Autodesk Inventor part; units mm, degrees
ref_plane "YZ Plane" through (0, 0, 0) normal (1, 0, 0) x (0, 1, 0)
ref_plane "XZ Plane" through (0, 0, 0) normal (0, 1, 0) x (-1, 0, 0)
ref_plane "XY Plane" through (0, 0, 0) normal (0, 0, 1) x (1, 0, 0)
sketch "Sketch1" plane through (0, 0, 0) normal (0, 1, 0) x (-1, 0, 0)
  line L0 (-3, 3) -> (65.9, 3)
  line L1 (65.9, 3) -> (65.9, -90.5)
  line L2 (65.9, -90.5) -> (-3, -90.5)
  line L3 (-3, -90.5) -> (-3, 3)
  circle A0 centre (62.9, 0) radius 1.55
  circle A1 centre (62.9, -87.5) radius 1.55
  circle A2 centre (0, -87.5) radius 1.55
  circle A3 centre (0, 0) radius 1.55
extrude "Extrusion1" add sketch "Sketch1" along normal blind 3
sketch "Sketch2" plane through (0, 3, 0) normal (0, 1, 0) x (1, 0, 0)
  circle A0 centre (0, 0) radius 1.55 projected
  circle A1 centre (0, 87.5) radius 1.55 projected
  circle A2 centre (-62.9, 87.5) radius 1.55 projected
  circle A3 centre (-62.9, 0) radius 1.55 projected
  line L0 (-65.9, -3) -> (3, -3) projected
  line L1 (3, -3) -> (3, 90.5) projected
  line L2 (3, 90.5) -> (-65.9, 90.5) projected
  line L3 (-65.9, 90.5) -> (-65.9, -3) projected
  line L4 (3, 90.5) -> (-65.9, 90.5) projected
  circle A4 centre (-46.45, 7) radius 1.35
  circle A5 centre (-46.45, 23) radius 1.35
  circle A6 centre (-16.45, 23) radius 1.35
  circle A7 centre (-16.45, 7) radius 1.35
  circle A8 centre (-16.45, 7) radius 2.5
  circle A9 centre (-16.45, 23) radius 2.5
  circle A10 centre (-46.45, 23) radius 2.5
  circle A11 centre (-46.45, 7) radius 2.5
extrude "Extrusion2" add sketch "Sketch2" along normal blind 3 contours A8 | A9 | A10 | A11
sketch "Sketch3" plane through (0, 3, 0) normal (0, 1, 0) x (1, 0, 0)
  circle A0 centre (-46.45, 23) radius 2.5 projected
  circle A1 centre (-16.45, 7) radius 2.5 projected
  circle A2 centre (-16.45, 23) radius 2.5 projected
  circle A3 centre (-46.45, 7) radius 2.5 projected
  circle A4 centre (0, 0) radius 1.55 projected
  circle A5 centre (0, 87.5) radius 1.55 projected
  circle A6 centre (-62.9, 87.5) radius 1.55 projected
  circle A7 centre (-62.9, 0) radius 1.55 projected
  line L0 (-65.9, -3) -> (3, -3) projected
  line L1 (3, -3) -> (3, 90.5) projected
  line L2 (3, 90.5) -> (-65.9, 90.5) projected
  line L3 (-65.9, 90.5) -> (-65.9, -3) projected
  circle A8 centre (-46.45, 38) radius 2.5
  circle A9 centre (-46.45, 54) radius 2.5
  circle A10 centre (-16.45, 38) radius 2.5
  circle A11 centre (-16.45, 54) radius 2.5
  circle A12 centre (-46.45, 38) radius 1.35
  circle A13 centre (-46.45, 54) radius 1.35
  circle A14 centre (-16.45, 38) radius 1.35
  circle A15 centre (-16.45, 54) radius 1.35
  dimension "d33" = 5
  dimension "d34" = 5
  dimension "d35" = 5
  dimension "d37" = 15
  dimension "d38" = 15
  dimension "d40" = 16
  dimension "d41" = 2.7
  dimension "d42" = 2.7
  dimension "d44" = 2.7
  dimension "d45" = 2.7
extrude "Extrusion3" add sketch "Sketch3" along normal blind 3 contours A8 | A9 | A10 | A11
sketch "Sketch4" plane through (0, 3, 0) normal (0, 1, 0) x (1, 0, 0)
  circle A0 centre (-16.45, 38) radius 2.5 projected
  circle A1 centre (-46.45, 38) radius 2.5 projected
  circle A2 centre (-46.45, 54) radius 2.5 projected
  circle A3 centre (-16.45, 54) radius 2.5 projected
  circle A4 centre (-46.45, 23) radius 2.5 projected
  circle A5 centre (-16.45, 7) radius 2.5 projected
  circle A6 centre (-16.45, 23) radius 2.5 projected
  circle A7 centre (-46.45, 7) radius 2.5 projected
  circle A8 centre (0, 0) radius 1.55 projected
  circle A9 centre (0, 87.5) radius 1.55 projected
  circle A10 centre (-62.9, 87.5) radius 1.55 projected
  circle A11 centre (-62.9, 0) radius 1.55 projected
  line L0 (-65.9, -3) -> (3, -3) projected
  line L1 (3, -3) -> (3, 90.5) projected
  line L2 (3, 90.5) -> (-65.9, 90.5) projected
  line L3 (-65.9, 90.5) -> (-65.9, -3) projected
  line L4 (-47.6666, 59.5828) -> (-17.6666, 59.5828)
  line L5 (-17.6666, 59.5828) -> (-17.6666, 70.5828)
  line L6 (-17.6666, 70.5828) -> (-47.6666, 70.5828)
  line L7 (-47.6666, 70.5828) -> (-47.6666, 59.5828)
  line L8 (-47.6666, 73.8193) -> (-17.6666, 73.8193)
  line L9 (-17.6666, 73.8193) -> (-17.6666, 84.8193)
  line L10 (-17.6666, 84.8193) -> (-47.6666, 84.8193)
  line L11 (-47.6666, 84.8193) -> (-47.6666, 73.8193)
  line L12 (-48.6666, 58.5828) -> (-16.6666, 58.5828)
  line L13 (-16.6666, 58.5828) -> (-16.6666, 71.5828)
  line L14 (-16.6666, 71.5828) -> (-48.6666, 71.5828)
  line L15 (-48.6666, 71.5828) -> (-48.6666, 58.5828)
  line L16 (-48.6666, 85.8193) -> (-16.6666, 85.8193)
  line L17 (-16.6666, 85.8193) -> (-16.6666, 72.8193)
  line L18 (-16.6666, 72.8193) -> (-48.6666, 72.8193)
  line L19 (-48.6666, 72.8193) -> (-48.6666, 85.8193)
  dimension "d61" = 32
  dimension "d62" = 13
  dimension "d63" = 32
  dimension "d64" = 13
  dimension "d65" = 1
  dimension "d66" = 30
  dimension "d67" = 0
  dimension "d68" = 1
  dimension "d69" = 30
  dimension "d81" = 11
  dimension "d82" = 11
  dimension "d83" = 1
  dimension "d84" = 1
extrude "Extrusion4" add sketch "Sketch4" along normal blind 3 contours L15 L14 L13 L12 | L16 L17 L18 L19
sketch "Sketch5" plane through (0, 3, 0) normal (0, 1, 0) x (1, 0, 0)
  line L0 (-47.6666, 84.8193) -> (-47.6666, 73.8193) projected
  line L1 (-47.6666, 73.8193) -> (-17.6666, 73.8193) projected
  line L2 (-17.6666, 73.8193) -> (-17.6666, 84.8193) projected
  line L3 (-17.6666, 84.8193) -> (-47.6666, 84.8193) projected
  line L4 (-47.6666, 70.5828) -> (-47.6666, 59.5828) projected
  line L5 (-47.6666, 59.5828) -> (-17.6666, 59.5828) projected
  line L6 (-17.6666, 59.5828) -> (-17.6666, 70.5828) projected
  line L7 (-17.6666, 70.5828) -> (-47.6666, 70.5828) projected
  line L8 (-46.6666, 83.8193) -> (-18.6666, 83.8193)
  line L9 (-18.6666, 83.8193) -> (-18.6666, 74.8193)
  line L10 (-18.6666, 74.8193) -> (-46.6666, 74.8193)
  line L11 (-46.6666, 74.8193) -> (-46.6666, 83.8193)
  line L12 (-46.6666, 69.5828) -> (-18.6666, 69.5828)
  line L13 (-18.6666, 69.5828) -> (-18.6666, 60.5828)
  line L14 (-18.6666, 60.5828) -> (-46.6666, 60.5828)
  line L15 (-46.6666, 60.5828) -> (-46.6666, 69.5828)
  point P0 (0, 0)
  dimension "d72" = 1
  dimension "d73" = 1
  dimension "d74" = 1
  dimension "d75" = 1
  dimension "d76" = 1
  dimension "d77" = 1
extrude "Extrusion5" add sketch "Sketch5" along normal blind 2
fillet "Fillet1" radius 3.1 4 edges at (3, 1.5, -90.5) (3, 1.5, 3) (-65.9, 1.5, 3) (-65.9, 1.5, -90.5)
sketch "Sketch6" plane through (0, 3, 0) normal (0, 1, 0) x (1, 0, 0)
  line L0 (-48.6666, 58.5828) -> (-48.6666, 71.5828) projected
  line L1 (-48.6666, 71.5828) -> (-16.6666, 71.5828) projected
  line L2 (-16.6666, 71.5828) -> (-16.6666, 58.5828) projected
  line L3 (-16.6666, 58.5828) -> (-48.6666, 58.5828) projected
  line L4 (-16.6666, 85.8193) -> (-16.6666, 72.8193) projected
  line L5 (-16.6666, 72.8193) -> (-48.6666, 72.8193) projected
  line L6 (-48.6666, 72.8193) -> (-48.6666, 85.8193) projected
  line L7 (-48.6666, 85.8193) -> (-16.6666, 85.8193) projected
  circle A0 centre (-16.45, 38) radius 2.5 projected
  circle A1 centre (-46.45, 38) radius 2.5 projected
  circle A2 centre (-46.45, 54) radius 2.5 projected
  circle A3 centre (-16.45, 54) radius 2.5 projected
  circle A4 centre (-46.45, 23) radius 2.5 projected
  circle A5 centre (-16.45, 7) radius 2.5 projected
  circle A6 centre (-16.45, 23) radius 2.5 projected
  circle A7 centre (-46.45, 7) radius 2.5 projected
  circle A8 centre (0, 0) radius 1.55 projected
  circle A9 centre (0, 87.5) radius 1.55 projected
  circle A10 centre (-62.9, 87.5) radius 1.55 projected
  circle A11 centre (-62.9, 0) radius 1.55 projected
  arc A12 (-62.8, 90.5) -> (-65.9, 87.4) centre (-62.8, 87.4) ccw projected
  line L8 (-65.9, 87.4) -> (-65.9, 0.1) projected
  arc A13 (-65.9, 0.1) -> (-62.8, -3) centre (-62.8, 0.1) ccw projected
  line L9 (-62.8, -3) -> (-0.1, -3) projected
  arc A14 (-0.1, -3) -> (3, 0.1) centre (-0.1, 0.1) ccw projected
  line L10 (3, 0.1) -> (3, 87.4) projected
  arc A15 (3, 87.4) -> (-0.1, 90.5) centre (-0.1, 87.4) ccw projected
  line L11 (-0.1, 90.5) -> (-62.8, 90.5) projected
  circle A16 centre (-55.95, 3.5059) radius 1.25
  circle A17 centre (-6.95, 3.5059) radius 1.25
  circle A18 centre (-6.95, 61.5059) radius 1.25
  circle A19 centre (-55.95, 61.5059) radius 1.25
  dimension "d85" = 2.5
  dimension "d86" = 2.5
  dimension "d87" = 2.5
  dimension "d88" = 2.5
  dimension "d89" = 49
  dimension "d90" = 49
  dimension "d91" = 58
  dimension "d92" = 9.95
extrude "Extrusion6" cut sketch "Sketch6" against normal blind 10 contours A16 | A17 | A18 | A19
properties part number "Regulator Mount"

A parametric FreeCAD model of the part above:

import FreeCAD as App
import Part
import Sketcher

V = App.Vector
Q = App.Units.Quantity


def edges_at(feature, points):
    """Names of the edges that pass closest to the given points."""
    edges = feature.Shape.Edges
    near = lambda p: min(range(len(edges)), key=lambda i: edges[i].distToShape(Part.Vertex(*p))[0])
    return sorted({f"Edge{near(p) + 1}" for p in points})


def add_polygon(sketch, points):
    """Adds a closed chain of lines whose ends are joined by coincident constraints."""
    first, n = sketch.GeometryCount, len(points)
    for a, b in zip(points, points[1:] + points[:1]):
        sketch.addGeometry(Part.LineSegment(App.Vector(*a, 0), App.Vector(*b, 0)), False)
    for i in range(n):
        sketch.addConstraint(Sketcher.Constraint("Coincident", first + i, 2, first + (i + 1) % n, 1))

doc = App.newDocument("Part")
params = doc.addObject("Spreadsheet::Sheet", "Params")
for row, (alias, value) in enumerate([
    ("sketch1_diameter", "3.1 mm"),
    ("sketch1_width", "68.9 mm"),
    ("sketch1_height", "93.5 mm"),
    ("pad1_length", "3 mm"),
    ("sketch2_diameter", "5 mm"),
    ("sketch2_diameter2", "2.7 mm"),
    ("pad2_length", "3 mm"),
    ("sketch3_diameter", "5 mm"),
    ("sketch3_diameter2", "2.7 mm"),
    ("pad3_length", "3 mm"),
    ("sketch4_width", "32 mm"),
    ("sketch4_width2", "30 mm"),
    ("sketch4_height", "13 mm"),
    ("sketch4_height2", "11 mm"),
    ("pad4_length", "3 mm"),
    ("sketch5_width", "30 mm"),
    ("sketch5_height", "11 mm"),
    ("pad5_length", "2 mm"),
    ("fillet_radius", "3.1 mm"),
    ("sketch6_diameter", "2.5 mm"),
    ("pocket1_length", "10 mm"),
], start=1):
    params.set(f"A{row}", alias)
    params.set(f"B{row}", "=" + value)
    params.setAlias(f"B{row}", alias)

body = doc.addObject("PartDesign::Body", "Body")

# Sketch on XZ plane
sketch1 = body.newObject("Sketcher::SketchObject", "Sketch")
sketch1.AttachmentSupport = (doc.getObject("XZ_Plane"), [""])
sketch1.MapMode = "FlatFace"
add_polygon(sketch1, [(-65.9, 3), (3, 3), (3, -90.5), (-65.9, -90.5)])  # lines 0-3
sketch1.addGeometry(Part.Circle(V(0, -87.5, 0), V(0, 0, 1), 1.6), False)  # 4
sketch1.addGeometry(Part.Circle(V(-62.9, -87.5, 0), V(0, 0, 1), 1.6), False)  # 5
sketch1.addGeometry(Part.Circle(V(0, 0, 0), V(0, 0, 1), 1.6), False)  # 6
sketch1.addGeometry(Part.Circle(V(-62.9, 0, 0), V(0, 0, 1), 1.6), False)  # 7
sketch1.addConstraint([
    Sketcher.Constraint("Horizontal", 0),
    Sketcher.Constraint("Vertical", 1),
    Sketcher.Constraint("Horizontal", 2),
    Sketcher.Constraint("Vertical", 3),
    Sketcher.Constraint("Coincident", 6, 3, -1, 1),
    Sketcher.Constraint("Equal", 4, 5),
    Sketcher.Constraint("Equal", 5, 6),
    Sketcher.Constraint("Equal", 6, 7),
    Sketcher.Constraint("PointOnObject", 4, 3, -2),
    Sketcher.Constraint("PointOnObject", 7, 3, -1),
    Sketcher.Constraint("Horizontal", 4, 3, 5, 3),
    Sketcher.Constraint("Vertical", 5, 3, 7, 3),
    Sketcher.Constraint("Diameter", 4, Q("3.1 mm")),
    Sketcher.Constraint("DistanceX", 0, 1, 0, 2, Q("68.9 mm")),
    Sketcher.Constraint("DistanceY", 1, 2, 1, 1, Q("93.5 mm")),
    Sketcher.Constraint("DistanceX", -1, 1, 0, 2, Q("3 mm")),
    Sketcher.Constraint("DistanceY", -1, 1, 0, 2, Q("3 mm")),
    Sketcher.Constraint("DistanceY", 1, 2, 4, 3, Q("3 mm")),
    Sketcher.Constraint("DistanceX", 2, 2, 5, 3, Q("3 mm")),
])
sketch1.setExpression("Constraints[16]", "Params.sketch1_diameter")
sketch1.setExpression("Constraints[17]", "Params.sketch1_width")
sketch1.setExpression("Constraints[18]", "Params.sketch1_height")
pad1 = body.newObject("PartDesign::Pad", "Pad")
pad1.Profile = sketch1
pad1.setExpression("Length", "Params.pad1_length")
pad1.Reversed = True

# Sketch on XZ plane
sketch2 = body.newObject("Sketcher::SketchObject", "Sketch001")
sketch2.AttachmentSupport = (doc.getObject("XZ_Plane"), [""])
sketch2.MapMode = "FlatFace"
sketch2.AttachmentOffset = App.Placement(V(0, 0, -3), App.Rotation())
sketch2.addGeometry([
    Part.Circle(V(-16.4, -7, 0), V(0, 0, 1), 2.5),  # 0
    Part.Circle(V(-16.4, -7, 0), V(0, 0, 1), 1.4),  # 1
    Part.Circle(V(-16.4, -23, 0), V(0, 0, 1), 2.5),  # 2
    Part.Circle(V(-16.4, -23, 0), V(0, 0, 1), 1.4),  # 3
    Part.Circle(V(-46.5, -23, 0), V(0, 0, 1), 2.5),  # 4
    Part.Circle(V(-46.5, -23, 0), V(0, 0, 1), 1.4),  # 5
    Part.Circle(V(-46.5, -7, 0), V(0, 0, 1), 2.5),  # 6
    Part.Circle(V(-46.5, -7, 0), V(0, 0, 1), 1.4),  # 7
], False)
sketch2.addConstraint([
    Sketcher.Constraint("Coincident", 1, 3, 0, 3),
    Sketcher.Constraint("Coincident", 3, 3, 2, 3),
    Sketcher.Constraint("Coincident", 5, 3, 4, 3),
    Sketcher.Constraint("Coincident", 7, 3, 6, 3),
    Sketcher.Constraint("Equal", 0, 2),
    Sketcher.Constraint("Equal", 1, 3),
    Sketcher.Constraint("Equal", 2, 4),
    Sketcher.Constraint("Equal", 3, 5),
    Sketcher.Constraint("Equal", 4, 6),
    Sketcher.Constraint("Equal", 5, 7),
    Sketcher.Constraint("Horizontal", 3, 3, 4, 3),
    Sketcher.Constraint("Horizontal", 1, 3, 6, 3),
    Sketcher.Constraint("Vertical", 1, 3, 2, 3),
    Sketcher.Constraint("Vertical", 5, 3, 6, 3),
    Sketcher.Constraint("Diameter", 0, Q("5 mm")),
    Sketcher.Constraint("Diameter", 1, Q("2.7 mm")),
    Sketcher.Constraint("DistanceY", 0, 3, -1, 1, Q("7 mm")),
    Sketcher.Constraint("DistanceY", 2, 3, -1, 1, Q("23 mm")),
    Sketcher.Constraint("DistanceX", 4, 3, 2, 3, Q("30 mm")),
    Sketcher.Constraint("DistanceX", 0, 3, -1, 1, Q("16.45 mm")),
])
sketch2.setExpression("Constraints[14]", "Params.sketch2_diameter")
sketch2.setExpression("Constraints[15]", "Params.sketch2_diameter2")
pad2 = body.newObject("PartDesign::Pad", "Pad001")
pad2.Profile = sketch2
pad2.setExpression("Length", "Params.pad2_length")
pad2.Reversed = True

# Sketch on XZ plane
sketch3 = body.newObject("Sketcher::SketchObject", "Sketch002")
sketch3.AttachmentSupport = (doc.getObject("XZ_Plane"), [""])
sketch3.MapMode = "FlatFace"
sketch3.AttachmentOffset = App.Placement(V(0, 0, -3), App.Rotation())
sketch3.addGeometry([
    Part.Circle(V(-46.5, -38, 0), V(0, 0, 1), 2.5),  # 0
    Part.Circle(V(-46.5, -38, 0), V(0, 0, 1), 1.4),  # 1
    Part.Circle(V(-46.5, -54, 0), V(0, 0, 1), 2.5),  # 2
    Part.Circle(V(-46.5, -54, 0), V(0, 0, 1), 1.4),  # 3
    Part.Circle(V(-16.4, -38, 0), V(0, 0, 1), 2.5),  # 4
    Part.Circle(V(-16.4, -38, 0), V(0, 0, 1), 1.4),  # 5
    Part.Circle(V(-16.4, -54, 0), V(0, 0, 1), 2.5),  # 6
    Part.Circle(V(-16.4, -54, 0), V(0, 0, 1), 1.4),  # 7
], False)
sketch3.addConstraint([
    Sketcher.Constraint("Coincident", 1, 3, 0, 3),
    Sketcher.Constraint("Coincident", 3, 3, 2, 3),
    Sketcher.Constraint("Coincident", 5, 3, 4, 3),
    Sketcher.Constraint("Coincident", 7, 3, 6, 3),
    Sketcher.Constraint("Equal", 0, 2),
    Sketcher.Constraint("Equal", 1, 3),
    Sketcher.Constraint("Equal", 2, 4),
    Sketcher.Constraint("Equal", 3, 5),
    Sketcher.Constraint("Equal", 4, 6),
    Sketcher.Constraint("Equal", 5, 7),
    Sketcher.Constraint("Horizontal", 1, 3, 4, 3),
    Sketcher.Constraint("Horizontal", 3, 3, 6, 3),
    Sketcher.Constraint("Vertical", 1, 3, 2, 3),
    Sketcher.Constraint("Vertical", 5, 3, 6, 3),
    Sketcher.Constraint("Diameter", 0, Q("5 mm")),
    Sketcher.Constraint("Diameter", 1, Q("2.7 mm")),
    Sketcher.Constraint("DistanceY", 2, 3, 0, 3, Q("16 mm")),
    Sketcher.Constraint("DistanceY", 0, 3, -1, 1, Q("38 mm")),
    Sketcher.Constraint("DistanceX", 0, 3, 4, 3, Q("30 mm")),
    Sketcher.Constraint("DistanceX", 0, 3, -1, 1, Q("46.45 mm")),
])
sketch3.setExpression("Constraints[14]", "Params.sketch3_diameter")
sketch3.setExpression("Constraints[15]", "Params.sketch3_diameter2")
pad3 = body.newObject("PartDesign::Pad", "Pad002")
pad3.Profile = sketch3
pad3.setExpression("Length", "Params.pad3_length")
pad3.Reversed = True

# Sketch on XZ plane
sketch4 = body.newObject("Sketcher::SketchObject", "Sketch003")
sketch4.AttachmentSupport = (doc.getObject("XZ_Plane"), [""])
sketch4.MapMode = "FlatFace"
sketch4.AttachmentOffset = App.Placement(V(0, 0, -3), App.Rotation())
add_polygon(sketch4, [(-49, -72), (-49, -59), (-17, -59), (-17, -72)])  # lines 0-3
add_polygon(sketch4, [(-18, -60), (-48, -60), (-48, -71), (-18, -71)])  # lines 4-7
add_polygon(sketch4, [(-17, -86), (-49, -86), (-49, -73), (-17, -73)])  # lines 8-11
add_polygon(sketch4, [(-18, -74), (-48, -74), (-48, -85), (-18, -85)])  # lines 12-15
sketch4.addConstraint([
    Sketcher.Constraint("Vertical", 0),
    Sketcher.Constraint("Horizontal", 1),
    Sketcher.Constraint("Vertical", 2),
    Sketcher.Constraint("Horizontal", 3),
    Sketcher.Constraint("Horizontal", 4),
    Sketcher.Constraint("Vertical", 5),
    Sketcher.Constraint("Horizontal", 6),
    Sketcher.Constraint("Vertical", 7),
    Sketcher.Constraint("Horizontal", 8),
    Sketcher.Constraint("Vertical", 9),
    Sketcher.Constraint("Horizontal", 10),
    Sketcher.Constraint("Vertical", 11),
    Sketcher.Constraint("Horizontal", 12),
    Sketcher.Constraint("Vertical", 13),
    Sketcher.Constraint("Horizontal", 14),
    Sketcher.Constraint("Vertical", 15),
    Sketcher.Constraint("Vertical", 3, 2, 8, 2),
    Sketcher.Constraint("Vertical", 2, 2, 10, 2),
    Sketcher.Constraint("Vertical", 5, 2, 12, 2),
    Sketcher.Constraint("Vertical", 7, 2, 14, 2),
    Sketcher.Constraint("Equal", 2, 9),
    Sketcher.Constraint("Equal", 7, 13),
    Sketcher.Constraint("DistanceX", 1, 1, 1, 2, Q("32 mm")),
    Sketcher.Constraint("DistanceX", 4, 2, 4, 1, Q("30 mm")),
    Sketcher.Constraint("DistanceY", 0, 1, 0, 2, Q("13 mm")),
    Sketcher.Constraint("DistanceY", 5, 2, 5, 1, Q("11 mm")),
    Sketcher.Constraint("DistanceX", 0, 2, 4, 2, Q("1 mm")),
    Sketcher.Constraint("DistanceY", 4, 2, 0, 2, Q("1 mm")),
    Sketcher.Constraint("DistanceY", 12, 2, 9, 2, Q("1 mm")),
    Sketcher.Constraint("DistanceX", 0, 2, -1, 1, Q("48.6666 mm")),
    Sketcher.Constraint("DistanceY", 0, 2, -1, 1, Q("58.5828 mm")),
    Sketcher.Constraint("DistanceY", 8, 2, -1, 1, Q("85.8193 mm")),
])
sketch4.setExpression("Constraints[38]", "Params.sketch4_width")
sketch4.setExpression("Constraints[39]", "Params.sketch4_width2")
sketch4.setExpression("Constraints[40]", "Params.sketch4_height")
sketch4.setExpression("Constraints[41]", "Params.sketch4_height2")
pad4 = body.newObject("PartDesign::Pad", "Pad003")
pad4.Profile = sketch4
pad4.setExpression("Length", "Params.pad4_length")
pad4.Reversed = True

# Sketch on XZ plane
sketch5 = body.newObject("Sketcher::SketchObject", "Sketch004")
sketch5.AttachmentSupport = (doc.getObject("XZ_Plane"), [""])
sketch5.MapMode = "FlatFace"
sketch5.AttachmentOffset = App.Placement(V(0, 0, -3), App.Rotation())
add_polygon(sketch5, [(-18, -85), (-48, -85), (-48, -74), (-18, -74)])  # lines 0-3
add_polygon(sketch5, [(-47, -75), (-47, -84), (-19, -84), (-19, -75)])  # lines 4-7
add_polygon(sketch5, [(-18, -71), (-48, -71), (-48, -60), (-18, -60)])  # lines 8-11
add_polygon(sketch5, [(-47, -61), (-47, -70), (-19, -70), (-19, -61)])  # lines 12-15
sketch5.addConstraint([
    Sketcher.Constraint("Horizontal", 0),
    Sketcher.Constraint("Vertical", 1),
    Sketcher.Constraint("Horizontal", 2),
    Sketcher.Constraint("Vertical", 3),
    Sketcher.Constraint("Vertical", 4),
    Sketcher.Constraint("Horizontal", 5),
    Sketcher.Constraint("Vertical", 6),
    Sketcher.Constraint("Horizontal", 7),
    Sketcher.Constraint("Horizontal", 8),
    Sketcher.Constraint("Vertical", 9),
    Sketcher.Constraint("Horizontal", 10),
    Sketcher.Constraint("Vertical", 11),
    Sketcher.Constraint("Vertical", 12),
    Sketcher.Constraint("Horizontal", 13),
    Sketcher.Constraint("Vertical", 14),
    Sketcher.Constraint("Horizontal", 15),
    Sketcher.Constraint("Vertical", 1, 2, 8, 2),
    Sketcher.Constraint("Vertical", 3, 2, 10, 2),
    Sketcher.Constraint("Vertical", 7, 2, 12, 2),
    Sketcher.Constraint("Vertical", 6, 2, 13, 2),
    Sketcher.Constraint("Equal", 3, 9),
    Sketcher.Constraint("Equal", 6, 12),
    Sketcher.Constraint("DistanceX", 0, 2, 4, 2, Q("1 mm")),
    Sketcher.Constraint("DistanceY", 0, 2, 4, 2, Q("1 mm")),
    Sketcher.Constraint("DistanceX", 5, 2, 3, 2, Q("1 mm")),
    Sketcher.Constraint("DistanceY", 6, 2, 2, 2, Q("1 mm")),
    Sketcher.Constraint("DistanceY", 8, 2, 12, 2, Q("1 mm")),
    Sketcher.Constraint("DistanceX", 0, 2, 0, 1, Q("30 mm")),
    Sketcher.Constraint("DistanceY", 1, 1, 1, 2, Q("11 mm")),
    Sketcher.Constraint("DistanceX", 0, 2, -1, 1, Q("47.6666 mm")),
    Sketcher.Constraint("DistanceY", 0, 2, -1, 1, Q("84.8193 mm")),
    Sketcher.Constraint("DistanceY", 8, 2, -1, 1, Q("70.5828 mm")),
])
sketch5.setExpression("Constraints[43]", "Params.sketch5_width")
sketch5.setExpression("Constraints[44]", "Params.sketch5_height")
pad5 = body.newObject("PartDesign::Pad", "Pad004")
pad5.Profile = sketch5
pad5.setExpression("Length", "Params.pad5_length")
pad5.Reversed = True
doc.recompute()

fillet = body.newObject("PartDesign::Fillet", "Fillet")
fillet.Base = (pad5, edges_at(pad5, [
    (3, 1.5, -90.5),
    (3, 1.5, 3),
    (-65.9, 1.5, 3),
    (-65.9, 1.5, -90.5),
]))
fillet.setExpression("Radius", "Params.fillet_radius")

# Sketch on XZ plane
sketch6 = body.newObject("Sketcher::SketchObject", "Sketch005")
sketch6.AttachmentSupport = (doc.getObject("XZ_Plane"), [""])
sketch6.MapMode = "FlatFace"
sketch6.AttachmentOffset = App.Placement(V(0, 0, -3), App.Rotation())
sketch6.addGeometry([
    Part.Circle(V(-56, -3.5, 0), V(0, 0, 1), 1.2),
    Part.Circle(V(-7, -3.5, 0), V(0, 0, 1), 1.2),
    Part.Circle(V(-7, -61.5, 0), V(0, 0, 1), 1.2),
    Part.Circle(V(-56, -61.5, 0), V(0, 0, 1), 1.2),
], False)
sketch6.addConstraint([
    Sketcher.Constraint("Equal", 0, 1),
    Sketcher.Constraint("Equal", 1, 2),
    Sketcher.Constraint("Equal", 2, 3),
    Sketcher.Constraint("Horizontal", 0, 3, 1, 3),
    Sketcher.Constraint("Horizontal", 2, 3, 3, 3),
    Sketcher.Constraint("Vertical", 1, 3, 2, 3),
    Sketcher.Constraint("Vertical", 0, 3, 3, 3),
    Sketcher.Constraint("Diameter", 0, Q("2.5 mm")),
    Sketcher.Constraint("DistanceX", 0, 3, 1, 3, Q("49 mm")),
    Sketcher.Constraint("DistanceY", 2, 3, 1, 3, Q("58 mm")),
    Sketcher.Constraint("DistanceX", 0, 3, -1, 1, Q("55.95 mm")),
    Sketcher.Constraint("DistanceY", 0, 3, -1, 1, Q("3.506 mm")),
])
sketch6.setExpression("Constraints[7]", "Params.sketch6_diameter")
pocket1 = body.newObject("PartDesign::Pocket", "Pocket")
pocket1.Profile = sketch6
pocket1.setExpression("Length", "Params.pocket1_length")
pocket1.Reversed = True

doc.recompute()
